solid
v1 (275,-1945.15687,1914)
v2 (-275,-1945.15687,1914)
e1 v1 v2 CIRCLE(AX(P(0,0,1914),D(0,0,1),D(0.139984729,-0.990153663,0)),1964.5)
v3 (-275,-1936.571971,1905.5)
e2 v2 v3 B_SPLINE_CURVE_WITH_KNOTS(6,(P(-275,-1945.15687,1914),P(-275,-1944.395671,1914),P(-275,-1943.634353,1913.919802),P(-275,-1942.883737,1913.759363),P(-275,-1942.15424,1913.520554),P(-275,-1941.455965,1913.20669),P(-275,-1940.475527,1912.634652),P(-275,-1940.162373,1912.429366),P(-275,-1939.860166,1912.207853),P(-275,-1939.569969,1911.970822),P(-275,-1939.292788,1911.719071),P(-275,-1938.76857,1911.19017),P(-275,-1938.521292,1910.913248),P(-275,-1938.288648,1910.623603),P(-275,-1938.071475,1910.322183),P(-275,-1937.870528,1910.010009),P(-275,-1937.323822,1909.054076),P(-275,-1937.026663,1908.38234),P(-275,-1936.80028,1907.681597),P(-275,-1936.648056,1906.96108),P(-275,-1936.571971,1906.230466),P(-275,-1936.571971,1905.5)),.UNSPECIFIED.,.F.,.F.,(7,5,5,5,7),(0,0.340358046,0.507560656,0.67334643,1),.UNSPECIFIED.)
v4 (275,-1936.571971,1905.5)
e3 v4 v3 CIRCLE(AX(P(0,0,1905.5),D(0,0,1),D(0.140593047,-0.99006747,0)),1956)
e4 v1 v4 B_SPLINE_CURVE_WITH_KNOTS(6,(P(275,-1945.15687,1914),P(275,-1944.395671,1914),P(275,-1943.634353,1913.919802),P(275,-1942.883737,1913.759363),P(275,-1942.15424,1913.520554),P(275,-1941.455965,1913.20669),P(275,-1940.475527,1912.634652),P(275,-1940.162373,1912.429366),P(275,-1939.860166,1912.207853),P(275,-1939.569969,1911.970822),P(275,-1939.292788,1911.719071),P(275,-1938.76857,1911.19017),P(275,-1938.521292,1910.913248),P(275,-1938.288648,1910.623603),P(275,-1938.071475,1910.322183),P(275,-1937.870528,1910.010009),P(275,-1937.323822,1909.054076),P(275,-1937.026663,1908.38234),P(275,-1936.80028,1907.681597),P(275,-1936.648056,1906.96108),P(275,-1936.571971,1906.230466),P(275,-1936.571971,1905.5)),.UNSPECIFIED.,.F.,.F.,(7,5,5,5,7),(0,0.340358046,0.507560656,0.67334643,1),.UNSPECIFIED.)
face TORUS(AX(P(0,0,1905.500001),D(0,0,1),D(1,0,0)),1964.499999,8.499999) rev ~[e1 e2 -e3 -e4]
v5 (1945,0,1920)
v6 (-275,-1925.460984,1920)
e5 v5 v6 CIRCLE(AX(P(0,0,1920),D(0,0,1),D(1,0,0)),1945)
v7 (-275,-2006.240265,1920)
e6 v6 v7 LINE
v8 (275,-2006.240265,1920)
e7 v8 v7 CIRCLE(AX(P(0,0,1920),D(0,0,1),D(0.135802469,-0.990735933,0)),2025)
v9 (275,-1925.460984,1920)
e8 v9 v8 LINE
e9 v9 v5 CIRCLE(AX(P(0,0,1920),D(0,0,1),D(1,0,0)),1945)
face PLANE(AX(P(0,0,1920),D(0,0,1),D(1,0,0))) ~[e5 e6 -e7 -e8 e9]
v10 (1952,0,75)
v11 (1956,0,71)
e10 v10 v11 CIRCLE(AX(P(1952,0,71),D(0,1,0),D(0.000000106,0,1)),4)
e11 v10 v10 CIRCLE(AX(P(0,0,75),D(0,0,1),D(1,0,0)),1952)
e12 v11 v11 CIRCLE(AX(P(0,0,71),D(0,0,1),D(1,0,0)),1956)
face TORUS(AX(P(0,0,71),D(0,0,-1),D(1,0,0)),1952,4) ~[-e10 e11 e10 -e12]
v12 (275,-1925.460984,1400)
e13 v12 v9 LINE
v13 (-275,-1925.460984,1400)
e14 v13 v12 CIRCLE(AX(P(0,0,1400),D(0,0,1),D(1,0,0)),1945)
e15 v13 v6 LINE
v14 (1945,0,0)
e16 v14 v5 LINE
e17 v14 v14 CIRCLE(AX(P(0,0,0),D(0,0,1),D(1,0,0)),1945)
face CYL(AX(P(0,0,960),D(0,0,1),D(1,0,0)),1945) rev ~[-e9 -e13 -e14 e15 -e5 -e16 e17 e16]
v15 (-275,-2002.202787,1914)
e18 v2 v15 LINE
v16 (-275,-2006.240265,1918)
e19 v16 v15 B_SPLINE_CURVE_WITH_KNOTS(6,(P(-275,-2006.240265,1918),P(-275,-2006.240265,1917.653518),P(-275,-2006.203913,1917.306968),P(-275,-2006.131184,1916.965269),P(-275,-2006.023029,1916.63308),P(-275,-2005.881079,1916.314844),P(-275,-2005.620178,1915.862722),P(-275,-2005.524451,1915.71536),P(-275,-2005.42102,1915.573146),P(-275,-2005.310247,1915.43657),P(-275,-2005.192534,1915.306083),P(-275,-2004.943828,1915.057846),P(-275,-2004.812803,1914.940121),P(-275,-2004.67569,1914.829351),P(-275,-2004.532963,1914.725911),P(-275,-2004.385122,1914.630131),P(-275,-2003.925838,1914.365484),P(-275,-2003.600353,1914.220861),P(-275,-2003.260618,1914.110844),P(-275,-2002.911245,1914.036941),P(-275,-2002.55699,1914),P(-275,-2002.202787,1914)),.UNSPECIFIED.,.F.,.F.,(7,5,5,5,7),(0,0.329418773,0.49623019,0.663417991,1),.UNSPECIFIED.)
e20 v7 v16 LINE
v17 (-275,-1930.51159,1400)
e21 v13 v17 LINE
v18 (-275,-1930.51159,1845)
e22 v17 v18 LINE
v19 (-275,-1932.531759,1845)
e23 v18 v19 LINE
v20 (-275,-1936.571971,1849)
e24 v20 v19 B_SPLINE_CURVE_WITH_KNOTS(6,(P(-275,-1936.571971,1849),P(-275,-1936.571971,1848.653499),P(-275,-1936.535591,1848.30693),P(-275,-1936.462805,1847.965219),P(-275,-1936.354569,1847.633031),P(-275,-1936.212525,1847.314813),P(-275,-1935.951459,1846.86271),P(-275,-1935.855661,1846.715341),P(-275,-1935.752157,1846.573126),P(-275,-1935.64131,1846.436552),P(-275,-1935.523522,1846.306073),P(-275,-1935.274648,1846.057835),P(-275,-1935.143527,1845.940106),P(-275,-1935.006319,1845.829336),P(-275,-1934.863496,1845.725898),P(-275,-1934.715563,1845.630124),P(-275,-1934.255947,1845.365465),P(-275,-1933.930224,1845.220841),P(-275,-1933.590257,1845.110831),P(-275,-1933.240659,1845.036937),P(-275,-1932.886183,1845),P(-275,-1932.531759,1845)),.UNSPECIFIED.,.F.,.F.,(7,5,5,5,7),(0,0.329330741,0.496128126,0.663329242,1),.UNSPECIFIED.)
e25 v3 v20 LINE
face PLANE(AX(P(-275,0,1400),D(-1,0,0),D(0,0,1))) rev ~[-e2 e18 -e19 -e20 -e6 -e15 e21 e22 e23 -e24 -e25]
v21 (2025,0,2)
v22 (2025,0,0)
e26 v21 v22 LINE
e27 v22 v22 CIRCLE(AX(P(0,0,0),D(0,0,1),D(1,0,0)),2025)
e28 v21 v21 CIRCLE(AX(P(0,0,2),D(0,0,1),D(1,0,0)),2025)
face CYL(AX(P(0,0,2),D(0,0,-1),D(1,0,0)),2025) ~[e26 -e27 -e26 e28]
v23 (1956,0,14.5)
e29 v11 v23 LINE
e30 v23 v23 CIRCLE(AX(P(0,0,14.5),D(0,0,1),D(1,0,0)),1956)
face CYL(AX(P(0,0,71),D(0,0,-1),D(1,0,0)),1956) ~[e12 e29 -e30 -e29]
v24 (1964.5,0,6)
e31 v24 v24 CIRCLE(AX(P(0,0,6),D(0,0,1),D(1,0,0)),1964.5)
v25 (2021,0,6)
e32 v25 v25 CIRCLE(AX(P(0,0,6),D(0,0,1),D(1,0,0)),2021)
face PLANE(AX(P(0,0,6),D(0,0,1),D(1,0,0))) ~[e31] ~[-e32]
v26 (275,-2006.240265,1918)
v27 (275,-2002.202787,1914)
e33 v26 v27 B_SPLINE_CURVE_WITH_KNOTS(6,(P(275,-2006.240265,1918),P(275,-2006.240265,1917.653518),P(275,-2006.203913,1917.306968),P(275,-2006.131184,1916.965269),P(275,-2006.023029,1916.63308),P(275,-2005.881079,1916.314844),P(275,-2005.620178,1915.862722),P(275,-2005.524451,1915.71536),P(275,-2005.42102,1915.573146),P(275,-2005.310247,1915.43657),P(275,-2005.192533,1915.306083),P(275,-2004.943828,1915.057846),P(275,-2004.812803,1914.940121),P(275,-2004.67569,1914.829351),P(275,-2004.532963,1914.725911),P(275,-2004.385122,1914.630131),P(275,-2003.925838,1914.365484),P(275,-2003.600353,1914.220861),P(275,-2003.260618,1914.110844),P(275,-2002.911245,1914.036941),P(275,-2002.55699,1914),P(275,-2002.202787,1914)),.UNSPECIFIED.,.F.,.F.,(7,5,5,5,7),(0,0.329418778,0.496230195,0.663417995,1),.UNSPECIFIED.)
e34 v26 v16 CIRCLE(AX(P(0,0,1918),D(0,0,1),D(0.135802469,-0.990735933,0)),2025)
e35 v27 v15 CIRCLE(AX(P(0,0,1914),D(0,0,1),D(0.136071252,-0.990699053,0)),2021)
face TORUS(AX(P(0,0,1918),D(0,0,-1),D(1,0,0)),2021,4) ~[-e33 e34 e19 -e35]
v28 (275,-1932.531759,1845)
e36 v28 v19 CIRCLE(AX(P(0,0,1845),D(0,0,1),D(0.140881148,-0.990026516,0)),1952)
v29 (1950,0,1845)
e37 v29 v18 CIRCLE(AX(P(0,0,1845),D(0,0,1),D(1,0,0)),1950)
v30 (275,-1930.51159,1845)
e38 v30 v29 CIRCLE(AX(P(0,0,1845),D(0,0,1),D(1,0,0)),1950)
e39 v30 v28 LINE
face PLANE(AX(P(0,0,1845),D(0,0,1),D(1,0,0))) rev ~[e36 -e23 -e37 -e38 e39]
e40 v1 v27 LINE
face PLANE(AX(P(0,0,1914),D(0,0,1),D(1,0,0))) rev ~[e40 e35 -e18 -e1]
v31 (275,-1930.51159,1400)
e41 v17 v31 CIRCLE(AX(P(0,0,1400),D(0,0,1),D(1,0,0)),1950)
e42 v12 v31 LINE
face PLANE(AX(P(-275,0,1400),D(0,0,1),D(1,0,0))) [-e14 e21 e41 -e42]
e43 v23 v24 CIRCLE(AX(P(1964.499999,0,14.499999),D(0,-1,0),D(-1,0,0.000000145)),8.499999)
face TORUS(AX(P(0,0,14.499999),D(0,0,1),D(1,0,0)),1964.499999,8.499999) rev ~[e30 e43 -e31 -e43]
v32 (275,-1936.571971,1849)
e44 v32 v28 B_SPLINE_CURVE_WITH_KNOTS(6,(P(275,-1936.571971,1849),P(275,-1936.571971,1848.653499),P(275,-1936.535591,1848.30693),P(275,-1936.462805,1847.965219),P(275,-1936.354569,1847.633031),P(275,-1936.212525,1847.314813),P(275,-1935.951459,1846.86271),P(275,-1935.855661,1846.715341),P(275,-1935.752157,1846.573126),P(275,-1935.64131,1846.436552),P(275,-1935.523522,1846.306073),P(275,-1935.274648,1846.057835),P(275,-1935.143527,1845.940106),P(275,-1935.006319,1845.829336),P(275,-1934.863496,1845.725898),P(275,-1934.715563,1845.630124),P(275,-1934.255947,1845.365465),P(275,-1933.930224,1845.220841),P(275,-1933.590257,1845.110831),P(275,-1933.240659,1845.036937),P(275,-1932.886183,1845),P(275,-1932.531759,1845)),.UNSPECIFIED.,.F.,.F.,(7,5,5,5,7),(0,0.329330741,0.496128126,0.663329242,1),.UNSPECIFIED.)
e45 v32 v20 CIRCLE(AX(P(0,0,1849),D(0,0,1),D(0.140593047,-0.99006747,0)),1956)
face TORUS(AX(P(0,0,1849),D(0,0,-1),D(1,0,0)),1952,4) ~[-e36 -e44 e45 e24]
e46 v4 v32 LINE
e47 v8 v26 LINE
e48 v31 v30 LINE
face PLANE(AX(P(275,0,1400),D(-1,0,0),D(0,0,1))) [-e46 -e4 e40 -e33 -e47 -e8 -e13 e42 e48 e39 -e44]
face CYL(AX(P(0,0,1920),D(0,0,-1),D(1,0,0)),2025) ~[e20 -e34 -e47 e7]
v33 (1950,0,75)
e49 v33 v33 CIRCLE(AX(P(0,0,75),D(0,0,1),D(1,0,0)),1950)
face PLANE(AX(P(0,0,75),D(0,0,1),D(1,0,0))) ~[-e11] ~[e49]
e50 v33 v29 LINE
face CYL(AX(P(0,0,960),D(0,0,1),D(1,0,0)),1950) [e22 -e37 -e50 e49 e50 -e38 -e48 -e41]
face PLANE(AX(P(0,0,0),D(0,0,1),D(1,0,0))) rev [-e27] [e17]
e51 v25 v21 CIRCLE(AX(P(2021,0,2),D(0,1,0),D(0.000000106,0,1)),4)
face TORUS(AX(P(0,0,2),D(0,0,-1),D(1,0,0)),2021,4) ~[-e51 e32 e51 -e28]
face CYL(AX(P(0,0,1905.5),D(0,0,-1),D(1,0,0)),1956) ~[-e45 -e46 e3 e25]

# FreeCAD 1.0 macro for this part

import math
import FreeCAD as App
import Part
import Sketcher

V = App.Vector

doc = App.newDocument("Part")
body = doc.addObject("PartDesign::Body", "Body")

sketch1 = body.newObject("Sketcher::SketchObject", "Sketch")
sketch1.AttachmentSupport = (doc.getObject("XZ_Plane"), [""])
sketch1.MapMode = "FlatFace"
sketch1.addGeometry([
    Part.LineSegment(V(-275, 1920, 0), V(-275, 1400, 0)),
    Part.LineSegment(V(-275, 1400, 0), V(275, 1400, 0)),
    Part.LineSegment(V(275, 1400, 0), V(275, 1920, 0)),
    Part.LineSegment(V(275, 1920, 0), V(-275, 1920, 0)),
], False)
sketch1.addConstraint([
    Sketcher.Constraint("Coincident", 0, 2, 1, 1),
    Sketcher.Constraint("Coincident", 1, 2, 2, 1),
    Sketcher.Constraint("Coincident", 2, 2, 3, 1),
    Sketcher.Constraint("Coincident", 3, 2, 0, 1),
    Sketcher.Constraint("Vertical", 0),
    Sketcher.Constraint("Horizontal", 1),
    Sketcher.Constraint("Vertical", 2),
    Sketcher.Constraint("Horizontal", 3),
    Sketcher.Constraint("DistanceX", 1, 1, 1, 2, 550.0),
    Sketcher.Constraint("DistanceY", 0, 2, 0, 1, 520.0),
    Sketcher.Constraint("DistanceX", 0, 2, -1, 1, 275.0),
    Sketcher.Constraint("DistanceY", -1, 1, 0, 2, 1400.0),
])
pad1 = body.newObject("PartDesign::Pad", "Pad")
pad1.Profile = sketch1
pad1.Length = 2500
body2 = doc.addObject("PartDesign::Body", "Body001")

sketch2 = body2.newObject("Sketcher::SketchObject", "Sketch001")
sketch2.AttachmentSupport = (doc.getObject("XZ_Plane001"), [""])
sketch2.MapMode = "FlatFace"
sketch2.addGeometry([
    Part.LineSegment(V(1950, 0, 0), V(1950, 75, 0)),
    Part.LineSegment(V(1950, 75, 0), V(1952, 75, 0)),
    Part.ArcOfCircle(Part.Circle(V(1952, 71, 0), V(0, 0, 1), 4), math.radians(0), math.radians(90)),
    Part.LineSegment(V(1956, 71, 0), V(1956, 14.5, 0)),
    Part.ArcOfCircle(Part.Circle(V(1964.5, 14.5, 0), V(0, 0, 1), 8.5), math.radians(180), math.radians(270)),
    Part.LineSegment(V(1964.5, 6, 0), V(2021, 6, 0)),
    Part.ArcOfCircle(Part.Circle(V(2021, 2, 0), V(0, 0, 1), 4), math.radians(0), math.radians(90)),
    Part.LineSegment(V(2025, 2, 0), V(2025, 0, 0)),
    Part.LineSegment(V(2025, 0, 0), V(1950, 0, 0)),
], False)
sketch2.addConstraint([
    Sketcher.Constraint("Coincident", 0, 2, 1, 1),
    Sketcher.Constraint("Tangent", 1, 2, 2, 2),
    Sketcher.Constraint("Tangent", 2, 1, 3, 1),
    Sketcher.Constraint("Tangent", 3, 2, 4, 1),
    Sketcher.Constraint("Tangent", 4, 2, 5, 1),
    Sketcher.Constraint("Tangent", 5, 2, 6, 2),
    Sketcher.Constraint("Tangent", 6, 1, 7, 1),
    Sketcher.Constraint("Coincident", 7, 2, 8, 1),
    Sketcher.Constraint("Coincident", 8, 2, 0, 1),
    Sketcher.Constraint("Vertical", 0),
    Sketcher.Constraint("Horizontal", 1),
    Sketcher.Constraint("Vertical", 3),
    Sketcher.Constraint("Horizontal", 5),
    Sketcher.Constraint("Vertical", 7),
    Sketcher.Constraint("Horizontal", 8),
    Sketcher.Constraint("Equal", 2, 6),
    Sketcher.Constraint("PointOnObject", 7, 2, -1),
    Sketcher.Constraint("Equal", 8, 0),
    Sketcher.Constraint("Equal", 5, 3),
    Sketcher.Constraint("Radius", 2, 4.0),
    Sketcher.Constraint("Radius", 4, 8.499999),
    Sketcher.Constraint("DistanceX", 1, 1, 1, 2, 2.0),
    Sketcher.Constraint("DistanceX", 8, 2, 8, 1, 75.0),
    Sketcher.Constraint("DistanceX", -1, 1, 2, 3, 1952.0),
])
revolution = body2.newObject("PartDesign::Revolution", "Revolution")
revolution.Profile = sketch2
revolution.ReferenceAxis = (sketch2, ["V_Axis"])
revolution.Angle = 360
body3 = doc.addObject("PartDesign::Body", "Body002")

sketch3 = body3.newObject("Sketcher::SketchObject", "Sketch002")
sketch3.AttachmentSupport = (doc.getObject("XZ_Plane002"), [""])
sketch3.MapMode = "FlatFace"
sketch3.addGeometry([
    Part.LineSegment(V(1950, 1920, 0), V(2025, 1920, 0)),
    Part.LineSegment(V(2025, 1920, 0), V(2025, 1918, 0)),
    Part.ArcOfCircle(Part.Circle(V(2021, 1918, 0), V(0, 0, 1), 4), math.radians(-90), math.radians(0)),
    Part.LineSegment(V(2021, 1914, 0), V(1964.5, 1914, 0)),
    Part.ArcOfCircle(Part.Circle(V(1964.5, 1905.5, 0), V(0, 0, 1), 8.5), math.radians(90), math.radians(180)),
    Part.LineSegment(V(1956, 1905.5, 0), V(1956, 1849, 0)),
    Part.ArcOfCircle(Part.Circle(V(1952, 1849, 0), V(0, 0, 1), 4), math.radians(-90), math.radians(0)),
    Part.LineSegment(V(1952, 1845, 0), V(1950, 1845, 0)),
    Part.LineSegment(V(1950, 1845, 0), V(1950, 1920, 0)),
], False)
sketch3.addConstraint([
    Sketcher.Constraint("Coincident", 0, 2, 1, 1),
    Sketcher.Constraint("Tangent", 1, 2, 2, 2),
    Sketcher.Constraint("Tangent", 2, 1, 3, 1),
    Sketcher.Constraint("Tangent", 3, 2, 4, 1),
    Sketcher.Constraint("Tangent", 4, 2, 5, 1),
    Sketcher.Constraint("Tangent", 5, 2, 6, 2),
    Sketcher.Constraint("Tangent", 6, 1, 7, 1),
    Sketcher.Constraint("Coincident", 7, 2, 8, 1),
    Sketcher.Constraint("Coincident", 8, 2, 0, 1),
    Sketcher.Constraint("Horizontal", 0),
    Sketcher.Constraint("Vertical", 1),
    Sketcher.Constraint("Horizontal", 3),
    Sketcher.Constraint("Vertical", 5),
    Sketcher.Constraint("Horizontal", 7),
    Sketcher.Constraint("Vertical", 8),
    Sketcher.Constraint("Equal", 2, 6),
    Sketcher.Constraint("Equal", 7, 1),
    Sketcher.Constraint("Equal", 3, 5),
    Sketcher.Constraint("Radius", 2, 4.0),
    Sketcher.Constraint("Radius", 4, 8.499999),
    Sketcher.Constraint("DistanceX", 0, 1, 0, 2, 75.0),
    Sketcher.Constraint("DistanceX", 7, 2, 7, 1, 2.0),
    Sketcher.Constraint("DistanceX", -1, 1, 2, 3, 2021.0),
    Sketcher.Constraint("DistanceY", -1, 1, 2, 3, 1918.0),
])
revolution2 = body3.newObject("PartDesign::Revolution", "Revolution001")
revolution2.Profile = sketch3
revolution2.ReferenceAxis = (sketch3, ["V_Axis"])
revolution2.Angle = 360
body4 = doc.addObject("PartDesign::Body", "Body003")

sketch4 = body4.newObject("Sketcher::SketchObject", "Sketch003")
sketch4.AttachmentSupport = (doc.getObject("XZ_Plane003"), [""])
sketch4.MapMode = "FlatFace"
sketch4.addGeometry([
    Part.LineSegment(V(1945, 1920, 0), V(1945, 0, 0)),
    Part.LineSegment(V(1945, 0, 0), V(1950, 0, 0)),
    Part.LineSegment(V(1950, 0, 0), V(1950, 1920, 0)),
    Part.LineSegment(V(1950, 1920, 0), V(1945, 1920, 0)),
], False)
sketch4.addConstraint([
    Sketcher.Constraint("Coincident", 0, 2, 1, 1),
    Sketcher.Constraint("Coincident", 1, 2, 2, 1),
    Sketcher.Constraint("Coincident", 2, 2, 3, 1),
    Sketcher.Constraint("Coincident", 3, 2, 0, 1),
    Sketcher.Constraint("Vertical", 0),
    Sketcher.Constraint("Horizontal", 1),
    Sketcher.Constraint("Vertical", 2),
    Sketcher.Constraint("Horizontal", 3),
    Sketcher.Constraint("PointOnObject", 0, 2, -1),
    Sketcher.Constraint("DistanceX", 1, 1, 1, 2, 5.0),
    Sketcher.Constraint("DistanceY", 0, 2, 0, 1, 1920.0),
    Sketcher.Constraint("DistanceX", -1, 1, 0, 2, 1945.0),
])
revolution3 = body4.newObject("PartDesign::Revolution", "Revolution002")
revolution3.Profile = sketch4
revolution3.ReferenceAxis = (sketch4, ["V_Axis"])
revolution3.Angle = 360
doc.recompute()

boolean = body4.newObject("PartDesign::Boolean", "Boolean")
boolean.Type = "Fuse"
boolean.addObjects([body2])
doc.recompute()

boolean2 = body4.newObject("PartDesign::Boolean", "Boolean001")
boolean2.Type = "Fuse"
boolean2.addObjects([body3])
doc.recompute()

boolean3 = body4.newObject("PartDesign::Boolean", "Boolean002")
boolean3.Type = "Cut"
boolean3.addObjects([body])

doc.recompute()
